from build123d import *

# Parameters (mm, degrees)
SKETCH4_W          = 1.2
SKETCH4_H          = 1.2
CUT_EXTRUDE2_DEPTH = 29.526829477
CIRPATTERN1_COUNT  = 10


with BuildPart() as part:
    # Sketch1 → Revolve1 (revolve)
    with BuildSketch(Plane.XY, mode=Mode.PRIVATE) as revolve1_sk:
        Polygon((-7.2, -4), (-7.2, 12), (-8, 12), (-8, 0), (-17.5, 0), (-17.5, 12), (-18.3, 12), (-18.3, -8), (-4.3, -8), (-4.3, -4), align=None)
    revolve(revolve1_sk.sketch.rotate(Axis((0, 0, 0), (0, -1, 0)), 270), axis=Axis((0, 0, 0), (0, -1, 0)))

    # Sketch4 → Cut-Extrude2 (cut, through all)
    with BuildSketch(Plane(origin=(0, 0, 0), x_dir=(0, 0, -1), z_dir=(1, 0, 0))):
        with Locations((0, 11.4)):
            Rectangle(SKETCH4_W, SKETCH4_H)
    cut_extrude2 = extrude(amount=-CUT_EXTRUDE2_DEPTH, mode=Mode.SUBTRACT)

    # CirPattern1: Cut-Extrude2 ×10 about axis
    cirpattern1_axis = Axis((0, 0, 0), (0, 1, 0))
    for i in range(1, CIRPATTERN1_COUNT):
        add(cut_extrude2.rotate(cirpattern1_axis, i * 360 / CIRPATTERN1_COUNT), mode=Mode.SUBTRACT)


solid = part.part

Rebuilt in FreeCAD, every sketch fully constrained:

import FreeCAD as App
import Part
import Sketcher


def add_polygon(sketch, points):
    """Adds a closed chain of lines whose ends are joined by coincident constraints."""
    first, n = sketch.GeometryCount, len(points)
    for a, b in zip(points, points[1:] + points[:1]):
        sketch.addGeometry(Part.LineSegment(App.Vector(*a, 0), App.Vector(*b, 0)), False)
    for i in range(n):
        sketch.addConstraint(Sketcher.Constraint("Coincident", first + i, 2, first + (i + 1) % n, 1))

doc = App.newDocument("Part")
body = doc.addObject("PartDesign::Body", "Body")

# Sketch on XY plane
sketch1 = doc.addObject("Sketcher::SketchObject", "Sketch")
body.addObject(sketch1)
sketch1.AttachmentSupport = (doc.XY_Plane, [""])
sketch1.MapMode = "FlatFace"
add_polygon(sketch1, [(-7.2, -4), (-7.2, 12), (-8, 12), (-8, 0), (-17.5, 0), (-17.5, 12), (-18.3, 12), (-18.3, -8), (-4.3, -8), (-4.3, -4)])  # lines 0-9
sketch1.addConstraint([
    Sketcher.Constraint("Vertical", 0),
    Sketcher.Constraint("Horizontal", 1),
    Sketcher.Constraint("Vertical", 2),
    Sketcher.Constraint("Horizontal", 3),
    Sketcher.Constraint("Vertical", 4),
    Sketcher.Constraint("Horizontal", 5),
    Sketcher.Constraint("Vertical", 6),
    Sketcher.Constraint("Horizontal", 7),
    Sketcher.Constraint("Vertical", 8),
    Sketcher.Constraint("Horizontal", 9),
    Sketcher.Constraint("PointOnObject", 2, 2, -1),
    Sketcher.Constraint("Horizontal", 1, 2, 4, 2),
    Sketcher.Constraint("Equal", 1, 5),
    Sketcher.Constraint("DistanceX", 7, 1, 7, 2, 14.0),
    Sketcher.Constraint("DistanceY", 0, 1, 0, 2, 16.0),
    Sketcher.Constraint("DistanceY", 2, 2, 2, 1, 12.0),
    Sketcher.Constraint("DistanceY", 6, 2, 6, 1, 20.0),
    Sketcher.Constraint("DistanceX", 1, 2, 1, 1, 0.8),
    Sketcher.Constraint("DistanceX", 3, 2, 3, 1, 9.5),
    Sketcher.Constraint("DistanceX", 1, 2, -1, 1, 8.0),
])
revolution = doc.addObject("PartDesign::Revolution", "Revolution")
body.addObject(revolution)
revolution.Profile = sketch1
revolution.ReferenceAxis = (sketch1, ["V_Axis"])
revolution.Angle = 360

# Sketch on YZ plane
sketch2 = doc.addObject("Sketcher::SketchObject", "Sketch001")
body.addObject(sketch2)
sketch2.AttachmentSupport = (doc.YZ_Plane, [""])
sketch2.MapMode = "FlatFace"
add_polygon(sketch2, [(12, 0.6), (10.8, 0.6), (10.8, -0.6), (12, -0.6)])  # lines 0-3
sketch2.addConstraint([
    Sketcher.Constraint("Horizontal", 0),
    Sketcher.Constraint("Vertical", 1),
    Sketcher.Constraint("Horizontal", 2),
    Sketcher.Constraint("Vertical", 3),
    Sketcher.Constraint("Equal", 2, 1),
    Sketcher.Constraint("DistanceX", 0, 2, 0, 1, 1.2),
    Sketcher.Constraint("DistanceX", -1, 1, 2, 2, 12.0),
    Sketcher.Constraint("DistanceY", -1, 1, 0, 2, 0.6),
])
pocket1 = doc.addObject("PartDesign::Pocket", "Pocket")
body.addObject(pocket1)
pocket1.Profile = sketch2
pocket1.Type = "ThroughAll"
doc.recompute()

polarpattern = doc.addObject("PartDesign::PolarPattern", "PolarPattern")
body.addObject(polarpattern)
polarpattern.Originals = [pocket1]
polarpattern.Axis = (doc.Y_Axis, [""])
polarpattern.Angle = 360
polarpattern.Occurrences = 10
body.Tip = polarpattern

doc.recompute()
